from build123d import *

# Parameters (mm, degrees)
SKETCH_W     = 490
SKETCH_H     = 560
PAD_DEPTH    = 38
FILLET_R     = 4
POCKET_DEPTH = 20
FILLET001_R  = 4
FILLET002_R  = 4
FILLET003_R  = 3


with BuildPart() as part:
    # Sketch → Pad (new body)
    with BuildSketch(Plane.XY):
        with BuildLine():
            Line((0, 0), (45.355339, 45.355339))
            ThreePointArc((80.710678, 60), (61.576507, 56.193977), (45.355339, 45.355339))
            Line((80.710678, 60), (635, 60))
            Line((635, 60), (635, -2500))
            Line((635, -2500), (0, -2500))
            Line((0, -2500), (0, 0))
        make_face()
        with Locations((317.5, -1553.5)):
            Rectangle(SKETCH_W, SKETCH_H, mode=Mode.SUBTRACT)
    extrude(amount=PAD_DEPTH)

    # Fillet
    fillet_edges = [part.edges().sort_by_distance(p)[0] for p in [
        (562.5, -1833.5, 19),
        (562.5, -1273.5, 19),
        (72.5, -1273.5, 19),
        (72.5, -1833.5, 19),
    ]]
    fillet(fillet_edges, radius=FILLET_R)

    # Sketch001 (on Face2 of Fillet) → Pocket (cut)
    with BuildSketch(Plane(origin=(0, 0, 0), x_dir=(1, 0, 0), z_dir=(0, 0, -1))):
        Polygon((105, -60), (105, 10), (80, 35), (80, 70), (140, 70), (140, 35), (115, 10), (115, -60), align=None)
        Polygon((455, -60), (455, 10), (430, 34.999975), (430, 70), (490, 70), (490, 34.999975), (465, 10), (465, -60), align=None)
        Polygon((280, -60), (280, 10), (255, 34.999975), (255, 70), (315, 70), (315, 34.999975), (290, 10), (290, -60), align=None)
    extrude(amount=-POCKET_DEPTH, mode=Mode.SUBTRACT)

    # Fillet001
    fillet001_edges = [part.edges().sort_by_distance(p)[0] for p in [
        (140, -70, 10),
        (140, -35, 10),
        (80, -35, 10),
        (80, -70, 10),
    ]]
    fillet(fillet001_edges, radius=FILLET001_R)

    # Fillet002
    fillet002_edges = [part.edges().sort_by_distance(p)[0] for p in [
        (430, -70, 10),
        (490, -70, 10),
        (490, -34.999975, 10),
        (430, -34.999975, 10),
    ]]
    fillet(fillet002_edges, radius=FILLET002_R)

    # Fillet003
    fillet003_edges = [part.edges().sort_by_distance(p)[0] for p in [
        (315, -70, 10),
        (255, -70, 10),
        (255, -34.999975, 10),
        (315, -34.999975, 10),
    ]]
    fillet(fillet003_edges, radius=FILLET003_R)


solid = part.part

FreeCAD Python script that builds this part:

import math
import FreeCAD as App
import Part
import Sketcher
Q = App.Units.Quantity


def edges_at(feature, points):
    """Names of the edges that pass closest to the given points."""
    edges = feature.Shape.Edges
    near = lambda p: min(range(len(edges)), key=lambda i: edges[i].distToShape(Part.Vertex(*p))[0])
    return sorted({f"Edge{near(p) + 1}" for p in points})

doc = App.newDocument("Part")
body = doc.addObject("PartDesign::Body", "Body")

# Sketch on XY plane
sketch1 = doc.addObject("Sketcher::SketchObject", "Sketch")
body.addObject(sketch1)
sketch1.AttachmentSupport = (doc.XY_Plane, [""])
sketch1.MapMode = "FlatFace"
sketch1.addGeometry([
    Part.LineSegment(App.Vector(45, 45, 0), App.Vector(0, 0, 0)),  # 0
    Part.LineSegment(App.Vector(0, 0, 0), App.Vector(0, -2500, 0)),  # 1
    Part.LineSegment(App.Vector(0, -2500, 0), App.Vector(635, -2500, 0)),  # 2
    Part.LineSegment(App.Vector(635, -2500, 0), App.Vector(635, 60, 0)),  # 3
    Part.LineSegment(App.Vector(635, 60, 0), App.Vector(81, 60, 0)),  # 4
    Part.ArcOfCircle(Part.Circle(App.Vector(81, 10, 0), App.Vector(0, 0, 1), 50), math.radians(90), math.radians(135)),  # 5
    Part.LineSegment(App.Vector(72, -1834, 0), App.Vector(72, -1274, 0)),  # 6
    Part.LineSegment(App.Vector(72, -1274, 0), App.Vector(562, -1274, 0)),  # 7
    Part.LineSegment(App.Vector(562, -1274, 0), App.Vector(562, -1834, 0)),  # 8
    Part.LineSegment(App.Vector(562, -1834, 0), App.Vector(72, -1834, 0)),  # 9
], False)
sketch1.addConstraint([
    Sketcher.Constraint("Coincident", 0, 2, 1, 1),
    Sketcher.Constraint("Coincident", 1, 2, 2, 1),
    Sketcher.Constraint("Coincident", 2, 2, 3, 1),
    Sketcher.Constraint("Coincident", 3, 2, 4, 1),
    Sketcher.Constraint("Tangent", 4, 2, 5, 1),
    Sketcher.Constraint("Tangent", 5, 2, 0, 1),
    Sketcher.Constraint("Coincident", 6, 2, 7, 1),
    Sketcher.Constraint("Coincident", 7, 2, 8, 1),
    Sketcher.Constraint("Coincident", 8, 2, 9, 1),
    Sketcher.Constraint("Coincident", 9, 2, 6, 1),
    Sketcher.Constraint("Vertical", 1),
    Sketcher.Constraint("Horizontal", 2),
    Sketcher.Constraint("Vertical", 3),
    Sketcher.Constraint("Horizontal", 4),
    Sketcher.Constraint("Vertical", 6),
    Sketcher.Constraint("Horizontal", 7),
    Sketcher.Constraint("Vertical", 8),
    Sketcher.Constraint("Horizontal", 9),
    Sketcher.Constraint("Coincident", 0, 2, -1, 1),
    Sketcher.Constraint("Radius", 5, 49.999998),
    Sketcher.Constraint("DistanceX", 2, 1, 2, 2, 635.0),
    Sketcher.Constraint("DistanceX", 7, 1, 7, 2, 490.0),
    Sketcher.Constraint("DistanceY", 1, 2, 1, 1, 2500.0),
    Sketcher.Constraint("DistanceY", 3, 1, 3, 2, 2560.0),
    Sketcher.Constraint("DistanceY", 6, 1, 6, 2, 560.0),
    Sketcher.Constraint("Angle", 0, Q("-135 deg")),
    Sketcher.Constraint("DistanceX", -1, 1, 6, 2, 72.5),
    Sketcher.Constraint("DistanceY", 6, 2, -1, 1, 1273.5),
])
pad1 = doc.addObject("PartDesign::Pad", "Pad")
body.addObject(pad1)
pad1.Profile = sketch1
pad1.Length = 38
doc.recompute()

fillet = doc.addObject("PartDesign::Fillet", "Fillet")
body.addObject(fillet)
fillet.Base = (pad1, edges_at(pad1, [
    (562.5, -1833.5, 19),
    (562.5, -1273.5, 19),
    (72.5, -1273.5, 19),
    (72.5, -1833.5, 19),
]))
fillet.Radius = 4

# Sketch on XY plane
sketch2 = doc.addObject("Sketcher::SketchObject", "Sketch001")
body.addObject(sketch2)
sketch2.AttachmentSupport = (doc.XY_Plane, [""])
sketch2.MapMode = "FlatFace"
sketch2.addGeometry([
    Part.LineSegment(App.Vector(105, -10, 0), App.Vector(105, 60, 0)),  # 0
    Part.LineSegment(App.Vector(105, 60, 0), App.Vector(115, 60, 0)),  # 1
    Part.LineSegment(App.Vector(115, 60, 0), App.Vector(115, -10, 0)),  # 2
    Part.LineSegment(App.Vector(115, -10, 0), App.Vector(140, -35, 0)),  # 3
    Part.LineSegment(App.Vector(140, -35, 0), App.Vector(140, -70, 0)),  # 4
    Part.LineSegment(App.Vector(140, -70, 0), App.Vector(80, -70, 0)),  # 5
    Part.LineSegment(App.Vector(80, -70, 0), App.Vector(80, -35, 0)),  # 6
    Part.LineSegment(App.Vector(80, -35, 0), App.Vector(105, -10, 0)),  # 7
    Part.LineSegment(App.Vector(455, -10, 0), App.Vector(455, 60, 0)),  # 8
    Part.LineSegment(App.Vector(455, 60, 0), App.Vector(465, 60, 0)),  # 9
    Part.LineSegment(App.Vector(465, 60, 0), App.Vector(465, -10, 0)),  # 10
    Part.LineSegment(App.Vector(465, -10, 0), App.Vector(490, -34.999975, 0)),  # 11
    Part.LineSegment(App.Vector(490, -34.999975, 0), App.Vector(490, -70, 0)),  # 12
    Part.LineSegment(App.Vector(490, -70, 0), App.Vector(430, -70, 0)),  # 13
    Part.LineSegment(App.Vector(430, -70, 0), App.Vector(430, -34.999975, 0)),  # 14
    Part.LineSegment(App.Vector(430, -34.999975, 0), App.Vector(455, -10, 0)),  # 15
    Part.LineSegment(App.Vector(280, -10, 0), App.Vector(280, 60, 0)),  # 16
    Part.LineSegment(App.Vector(280, 60, 0), App.Vector(290, 60, 0)),  # 17
    Part.LineSegment(App.Vector(290, 60, 0), App.Vector(290, -10, 0)),  # 18
    Part.LineSegment(App.Vector(290, -10, 0), App.Vector(315, -34.999975, 0)),  # 19
    Part.LineSegment(App.Vector(315, -34.999975, 0), App.Vector(315, -70, 0)),  # 20
    Part.LineSegment(App.Vector(315, -70, 0), App.Vector(255, -70, 0)),  # 21
    Part.LineSegment(App.Vector(255, -70, 0), App.Vector(255, -34.999975, 0)),  # 22
    Part.LineSegment(App.Vector(255, -34.999975, 0), App.Vector(280, -10, 0)),  # 23
], False)
sketch2.addConstraint([
    Sketcher.Constraint("Coincident", 0, 2, 1, 1),
    Sketcher.Constraint("Coincident", 1, 2, 2, 1),
    Sketcher.Constraint("Coincident", 2, 2, 3, 1),
    Sketcher.Constraint("Coincident", 3, 2, 4, 1),
    Sketcher.Constraint("Coincident", 4, 2, 5, 1),
    Sketcher.Constraint("Coincident", 5, 2, 6, 1),
    Sketcher.Constraint("Coincident", 6, 2, 7, 1),
    Sketcher.Constraint("Coincident", 7, 2, 0, 1),
    Sketcher.Constraint("Coincident", 8, 2, 9, 1),
    Sketcher.Constraint("Coincident", 9, 2, 10, 1),
    Sketcher.Constraint("Coincident", 10, 2, 11, 1),
    Sketcher.Constraint("Coincident", 11, 2, 12, 1),
    Sketcher.Constraint("Coincident", 12, 2, 13, 1),
    Sketcher.Constraint("Coincident", 13, 2, 14, 1),
    Sketcher.Constraint("Coincident", 14, 2, 15, 1),
    Sketcher.Constraint("Coincident", 15, 2, 8, 1),
    Sketcher.Constraint("Coincident", 16, 2, 17, 1),
    Sketcher.Constraint("Coincident", 17, 2, 18, 1),
    Sketcher.Constraint("Coincident", 18, 2, 19, 1),
    Sketcher.Constraint("Coincident", 19, 2, 20, 1),
    Sketcher.Constraint("Coincident", 20, 2, 21, 1),
    Sketcher.Constraint("Coincident", 21, 2, 22, 1),
    Sketcher.Constraint("Coincident", 22, 2, 23, 1),
    Sketcher.Constraint("Coincident", 23, 2, 16, 1),
    Sketcher.Constraint("Vertical", 0),
    Sketcher.Constraint("Horizontal", 1),
    Sketcher.Constraint("Vertical", 2),
    Sketcher.Constraint("Vertical", 4),
    Sketcher.Constraint("Horizontal", 5),
    Sketcher.Constraint("Vertical", 6),
    Sketcher.Constraint("Vertical", 8),
    Sketcher.Constraint("Horizontal", 9),
    Sketcher.Constraint("Vertical", 10),
    Sketcher.Constraint("Vertical", 12),
    Sketcher.Constraint("Horizontal", 13),
    Sketcher.Constraint("Vertical", 14),
    Sketcher.Constraint("Vertical", 16),
    Sketcher.Constraint("Horizontal", 17),
    Sketcher.Constraint("Vertical", 18),
    Sketcher.Constraint("Vertical", 20),
    Sketcher.Constraint("Horizontal", 21),
    Sketcher.Constraint("Vertical", 22),
    Sketcher.Constraint("Perpendicular", 3, 7),
    Sketcher.Constraint("Perpendicular", 7, 11),
    Sketcher.Constraint("Perpendicular", 11, 15),
    Sketcher.Constraint("Perpendicular", 15, 19),
    Sketcher.Constraint("Perpendicular", 19, 23),
    Sketcher.Constraint("Horizontal", 3, 2, 6, 2),
    Sketcher.Constraint("Horizontal", 2, 2, 7, 2),
    Sketcher.Constraint("Horizontal", 1, 2, 8, 2),
    Sketcher.Constraint("Horizontal", 7, 2, 10, 2),
    Sketcher.Constraint("Horizontal", 5, 2, 12, 2),
    Sketcher.Constraint("Horizontal", 11, 2, 14, 2),
    Sketcher.Constraint("Horizontal", 10, 2, 15, 2),
    Sketcher.Constraint("Horizontal", 9, 2, 16, 2),
    Sketcher.Constraint("Horizontal", 15, 2, 18, 2),
    Sketcher.Constraint("Horizontal", 14, 2, 19, 2),
    Sketcher.Constraint("Horizontal", 13, 2, 20, 2),
    Sketcher.Constraint("Horizontal", 19, 2, 22, 2),
    Sketcher.Constraint("Horizontal", 18, 2, 23, 2),
    Sketcher.Constraint("Equal", 1, 9),
    Sketcher.Constraint("Equal", 5, 13),
    Sketcher.Constraint("Equal", 9, 17),
    Sketcher.Constraint("Equal", 3, 7),
    Sketcher.Constraint("DistanceX", 1, 1, 1, 2, 10.0),
    Sketcher.Constraint("DistanceX", 5, 2, 5, 1, 60.0),
    Sketcher.Constraint("DistanceY", 0, 1, 0, 2, 70.0),
    Sketcher.Constraint("DistanceY", 4, 2, 4, 1, 35.0),
    Sketcher.Constraint("DistanceX", -1, 1, 0, 2, 105.0),
    Sketcher.Constraint("DistanceY", -1, 1, 0, 2, 60.0),
    Sketcher.Constraint("DistanceX", -1, 1, 8, 2, 455.0),
    Sketcher.Constraint("DistanceX", -1, 1, 16, 2, 280.0),
])
pocket1 = doc.addObject("PartDesign::Pocket", "Pocket")
body.addObject(pocket1)
pocket1.Profile = sketch2
pocket1.Length = 20
pocket1.Reversed = True
doc.recompute()

fillet2 = doc.addObject("PartDesign::Fillet", "Fillet001")
body.addObject(fillet2)
fillet2.Base = (pocket1, edges_at(pocket1, [
    (140, -70, 10),
    (140, -35, 10),
    (80, -35, 10),
    (80, -70, 10),
]))
fillet2.Radius = 4
doc.recompute()

fillet3 = doc.addObject("PartDesign::Fillet", "Fillet002")
body.addObject(fillet3)
fillet3.Base = (fillet2, edges_at(fillet2, [
    (430, -70, 10),
    (490, -70, 10),
    (490, -35, 10),
    (430, -35, 10),
]))
fillet3.Radius = 4
doc.recompute()

fillet4 = doc.addObject("PartDesign::Fillet", "Fillet003")
body.addObject(fillet4)
fillet4.Base = (fillet3, edges_at(fillet3, [
    (315, -70, 10),
    (255, -70, 10),
    (255, -35, 10),
    (315, -35, 10),
]))
fillet4.Radius = 3

doc.recompute()
